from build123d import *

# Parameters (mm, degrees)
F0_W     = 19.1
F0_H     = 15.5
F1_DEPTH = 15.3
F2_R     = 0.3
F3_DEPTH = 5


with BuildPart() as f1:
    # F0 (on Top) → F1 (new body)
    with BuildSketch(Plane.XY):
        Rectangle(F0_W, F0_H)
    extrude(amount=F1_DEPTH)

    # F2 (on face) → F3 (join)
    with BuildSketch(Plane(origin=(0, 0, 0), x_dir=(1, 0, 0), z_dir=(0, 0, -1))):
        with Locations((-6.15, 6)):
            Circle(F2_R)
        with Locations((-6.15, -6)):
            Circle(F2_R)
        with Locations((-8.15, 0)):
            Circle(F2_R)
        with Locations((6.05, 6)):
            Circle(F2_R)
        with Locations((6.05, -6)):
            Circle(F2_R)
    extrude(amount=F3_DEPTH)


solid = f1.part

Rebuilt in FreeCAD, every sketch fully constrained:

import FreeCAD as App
import Part
import Sketcher
from FreeCAD import Vector

doc = App.newDocument("Part")
body = doc.addObject("PartDesign::Body", "Body")

# Sketch on XY plane
sketch1 = body.newObject("Sketcher::SketchObject", "Sketch")
sketch1.AttachmentSupport = (doc.getObject("XY_Plane"), [""])
sketch1.MapMode = "FlatFace"
sketch1.addGeometry(Part.LineSegment(Vector(-10, 8, 0), Vector(-10, -8, 0)), False)
sketch1.addGeometry(Part.LineSegment(Vector(-10, -8, 0), Vector(10, -8, 0)), False)
sketch1.addGeometry(Part.LineSegment(Vector(10, -8, 0), Vector(10, 8, 0)), False)
sketch1.addGeometry(Part.LineSegment(Vector(10, 8, 0), Vector(-10, 8, 0)), False)
sketch1.addConstraint(Sketcher.Constraint("Coincident", 0, 2, 1, 1))
sketch1.addConstraint(Sketcher.Constraint("Coincident", 1, 2, 2, 1))
sketch1.addConstraint(Sketcher.Constraint("Coincident", 2, 2, 3, 1))
sketch1.addConstraint(Sketcher.Constraint("Coincident", 3, 2, 0, 1))
sketch1.addConstraint(Sketcher.Constraint("Vertical", 0))
sketch1.addConstraint(Sketcher.Constraint("Horizontal", 1))
sketch1.addConstraint(Sketcher.Constraint("Vertical", 2))
sketch1.addConstraint(Sketcher.Constraint("Horizontal", 3))
sketch1.addConstraint(Sketcher.Constraint("Symmetric", 0, 2, 2, 2, -1, 1))
sketch1.addConstraint(Sketcher.Constraint("DistanceX", 1, 1, 1, 2, 19.1))
sketch1.addConstraint(Sketcher.Constraint("DistanceY", 0, 2, 0, 1, 15.5))
pad1 = body.newObject("PartDesign::Pad", "Pad")
pad1.Profile = sketch1
pad1.Length = 15.3

# Sketch on XY plane
sketch2 = body.newObject("Sketcher::SketchObject", "Sketch001")
sketch2.AttachmentSupport = (doc.getObject("XY_Plane"), [""])
sketch2.MapMode = "FlatFace"
sketch2.addGeometry(Part.Circle(Vector(-6.15, -6, 0), Vector(0, 0, 1), 0.3), False)
sketch2.addGeometry(Part.Circle(Vector(-6.15, 6, 0), Vector(0, 0, 1), 0.3), False)
sketch2.addGeometry(Part.Circle(Vector(-8.15, 0, 0), Vector(0, 0, 1), 0.3), False)
sketch2.addGeometry(Part.Circle(Vector(6.05, -6, 0), Vector(0, 0, 1), 0.3), False)
sketch2.addGeometry(Part.Circle(Vector(6.05, 6, 0), Vector(0, 0, 1), 0.3), False)
sketch2.addConstraint(Sketcher.Constraint("Equal", 0, 1))
sketch2.addConstraint(Sketcher.Constraint("Equal", 1, 2))
sketch2.addConstraint(Sketcher.Constraint("Equal", 2, 3))
sketch2.addConstraint(Sketcher.Constraint("Equal", 3, 4))
sketch2.addConstraint(Sketcher.Constraint("Symmetric", 0, 3, 1, 3, -1))
sketch2.addConstraint(Sketcher.Constraint("Symmetric", 3, 3, 4, 3, -1))
sketch2.addConstraint(Sketcher.Constraint("PointOnObject", 2, 3, -1))
sketch2.addConstraint(Sketcher.Constraint("Horizontal", 0, 3, 3, 3))
sketch2.addConstraint(Sketcher.Constraint("Diameter", 0, 0.6))
sketch2.addConstraint(Sketcher.Constraint("DistanceY", 0, 3, -1, 1, 6.0))
sketch2.addConstraint(Sketcher.Constraint("DistanceX", 2, 3, 0, 3, 2.0))
sketch2.addConstraint(Sketcher.Constraint("DistanceX", 0, 3, 3, 3, 12.2))
sketch2.addConstraint(Sketcher.Constraint("DistanceX", 0, 3, -1, 1, 6.15))
pad2 = body.newObject("PartDesign::Pad", "Pad001")
pad2.Profile = sketch2
pad2.Length = 5
pad2.Reversed = True

doc.recompute()
